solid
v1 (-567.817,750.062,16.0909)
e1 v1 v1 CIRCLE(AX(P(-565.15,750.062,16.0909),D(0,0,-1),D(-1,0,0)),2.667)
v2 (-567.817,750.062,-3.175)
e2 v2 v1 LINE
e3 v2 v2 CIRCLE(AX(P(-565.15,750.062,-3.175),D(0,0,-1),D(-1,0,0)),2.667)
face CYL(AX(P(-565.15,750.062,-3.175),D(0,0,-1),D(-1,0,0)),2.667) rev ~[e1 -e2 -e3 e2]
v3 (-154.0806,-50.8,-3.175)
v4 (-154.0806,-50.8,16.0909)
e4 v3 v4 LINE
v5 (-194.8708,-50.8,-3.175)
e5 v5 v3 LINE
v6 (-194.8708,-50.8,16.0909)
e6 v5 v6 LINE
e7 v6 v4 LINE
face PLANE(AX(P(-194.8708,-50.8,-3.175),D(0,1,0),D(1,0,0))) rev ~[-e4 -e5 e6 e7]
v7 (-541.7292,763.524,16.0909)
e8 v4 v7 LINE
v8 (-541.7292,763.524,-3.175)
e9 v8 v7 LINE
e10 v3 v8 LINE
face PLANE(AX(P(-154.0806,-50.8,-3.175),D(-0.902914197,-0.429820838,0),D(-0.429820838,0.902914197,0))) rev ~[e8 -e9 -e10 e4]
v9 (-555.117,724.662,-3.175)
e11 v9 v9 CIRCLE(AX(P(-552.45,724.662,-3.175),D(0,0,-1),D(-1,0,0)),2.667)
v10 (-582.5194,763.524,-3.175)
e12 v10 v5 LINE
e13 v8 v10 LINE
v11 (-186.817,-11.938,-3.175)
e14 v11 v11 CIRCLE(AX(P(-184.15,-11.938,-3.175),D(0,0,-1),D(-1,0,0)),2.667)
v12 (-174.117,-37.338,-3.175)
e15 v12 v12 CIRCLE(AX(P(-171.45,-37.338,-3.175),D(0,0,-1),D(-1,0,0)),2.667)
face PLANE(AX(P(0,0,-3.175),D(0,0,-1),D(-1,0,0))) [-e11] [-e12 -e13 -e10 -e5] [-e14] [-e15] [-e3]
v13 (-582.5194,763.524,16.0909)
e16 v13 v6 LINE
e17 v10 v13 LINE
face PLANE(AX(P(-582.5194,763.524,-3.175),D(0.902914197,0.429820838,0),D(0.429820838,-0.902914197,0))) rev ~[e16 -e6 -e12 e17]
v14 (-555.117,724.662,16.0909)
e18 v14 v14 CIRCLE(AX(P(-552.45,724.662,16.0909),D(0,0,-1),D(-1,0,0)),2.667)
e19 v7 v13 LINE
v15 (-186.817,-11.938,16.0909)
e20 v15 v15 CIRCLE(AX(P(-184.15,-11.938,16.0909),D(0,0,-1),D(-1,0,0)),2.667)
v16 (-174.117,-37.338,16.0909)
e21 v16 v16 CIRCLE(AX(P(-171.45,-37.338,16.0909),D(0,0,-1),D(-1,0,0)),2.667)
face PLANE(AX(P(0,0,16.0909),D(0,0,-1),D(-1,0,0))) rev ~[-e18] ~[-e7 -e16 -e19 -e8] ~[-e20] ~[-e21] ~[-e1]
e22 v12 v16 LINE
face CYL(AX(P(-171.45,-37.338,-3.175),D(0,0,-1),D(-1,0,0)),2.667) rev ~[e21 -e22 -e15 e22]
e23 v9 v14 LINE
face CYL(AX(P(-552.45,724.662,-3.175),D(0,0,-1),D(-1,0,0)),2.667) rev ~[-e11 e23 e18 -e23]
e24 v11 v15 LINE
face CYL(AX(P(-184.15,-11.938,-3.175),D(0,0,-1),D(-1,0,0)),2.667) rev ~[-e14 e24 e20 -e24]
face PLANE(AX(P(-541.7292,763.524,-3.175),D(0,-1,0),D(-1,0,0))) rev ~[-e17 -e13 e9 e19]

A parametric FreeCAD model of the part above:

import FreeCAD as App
import Part
import Sketcher
Q = App.Units.Quantity


def add_polygon(sketch, points):
    """Adds a closed chain of lines whose ends are joined by coincident constraints."""
    first, n = sketch.GeometryCount, len(points)
    for a, b in zip(points, points[1:] + points[:1]):
        sketch.addGeometry(Part.LineSegment(App.Vector(*a, 0), App.Vector(*b, 0)), False)
    for i in range(n):
        sketch.addConstraint(Sketcher.Constraint("Coincident", first + i, 2, first + (i + 1) % n, 1))

doc = App.newDocument("Part")
params = doc.addObject("Spreadsheet::Sheet", "Params")
for row, (alias, value) in enumerate([
    ("sketch1_diameter", "0.21 in"),
    ("pad1_length", "0.7585 in"),
], start=1):
    params.set(f"A{row}", alias)
    params.set(f"B{row}", "=" + value)
    params.setAlias(f"B{row}", alias)

body = doc.addObject("PartDesign::Body", "Body")

# Sketch on XY plane
sketch1 = body.newObject("Sketcher::SketchObject", "Sketch")
sketch1.AttachmentSupport = (doc.getObject("XY_Plane"), [""])
sketch1.MapMode = "FlatFace"
sketch1.AttachmentOffset = App.Placement(App.Vector(0, 0, -0.125 * 25.4), App.Rotation())
add_polygon(sketch1, [(-582.5, 763.5), (-541.7, 763.5), (-154.1, -50.8), (-194.9, -50.8)])  # lines 0-3
sketch1.addGeometry(Part.Circle(App.Vector(-171.4, -37.3, 0), App.Vector(0, 0, 1), 2.7), False)  # 4
sketch1.addGeometry(Part.Circle(App.Vector(-184.2, -11.9, 0), App.Vector(0, 0, 1), 2.7), False)  # 5
sketch1.addGeometry(Part.Circle(App.Vector(-552.5, 724.7, 0), App.Vector(0, 0, 1), 2.7), False)  # 6
sketch1.addGeometry(Part.Circle(App.Vector(-565.1, 750.1, 0), App.Vector(0, 0, 1), 2.7), False)  # 7
sketch1.addConstraint([
    Sketcher.Constraint("Horizontal", 0),
    Sketcher.Constraint("Horizontal", 2),
    Sketcher.Constraint("Equal", 4, 5),
    Sketcher.Constraint("Equal", 5, 6),
    Sketcher.Constraint("Equal", 6, 7),
    Sketcher.Constraint("Parallel", 1, 3),
    Sketcher.Constraint("Diameter", 4, Q("0.21 in")),
    Sketcher.Constraint("DistanceY", 1, 2, -1, 1, Q("2 in")),
    Sketcher.Constraint("DistanceY", 4, 3, 5, 3, Q("1 in")),
    Sketcher.Constraint("DistanceY", 5, 3, 6, 3, Q("29 in")),
    Sketcher.Constraint("DistanceX", 6, 3, 4, 3, Q("15 in")),
    Sketcher.Constraint("DistanceY", 6, 3, 7, 3, Q("1 in")),
    Sketcher.Constraint("DistanceX", 7, 3, 5, 3, Q("15 in")),
    Sketcher.Constraint("DistanceX", 5, 3, 4, 3, Q("0.5 in")),
    Sketcher.Constraint("DistanceX", 4, 3, -1, 1, Q("6.75 in")),
    Sketcher.Constraint("DistanceY", 4, 3, -1, 1, Q("1.47 in")),
    Sketcher.Constraint("DistanceY", -1, 1, 0, 2, Q("30.06 in")),
    Sketcher.Constraint("DistanceX", 0, 1, 0, 2, 40.7902),
    Sketcher.Constraint("Distance", 1, 901.8841),
    Sketcher.Constraint("DistanceX", 0, 2, -1, 1, 541.7292),
])
sketch1.setExpression("Constraints[10]", "Params.sketch1_diameter")
pad1 = body.newObject("PartDesign::Pad", "Pad")
pad1.Profile = sketch1
pad1.setExpression("Length", "Params.pad1_length")

doc.recompute()
